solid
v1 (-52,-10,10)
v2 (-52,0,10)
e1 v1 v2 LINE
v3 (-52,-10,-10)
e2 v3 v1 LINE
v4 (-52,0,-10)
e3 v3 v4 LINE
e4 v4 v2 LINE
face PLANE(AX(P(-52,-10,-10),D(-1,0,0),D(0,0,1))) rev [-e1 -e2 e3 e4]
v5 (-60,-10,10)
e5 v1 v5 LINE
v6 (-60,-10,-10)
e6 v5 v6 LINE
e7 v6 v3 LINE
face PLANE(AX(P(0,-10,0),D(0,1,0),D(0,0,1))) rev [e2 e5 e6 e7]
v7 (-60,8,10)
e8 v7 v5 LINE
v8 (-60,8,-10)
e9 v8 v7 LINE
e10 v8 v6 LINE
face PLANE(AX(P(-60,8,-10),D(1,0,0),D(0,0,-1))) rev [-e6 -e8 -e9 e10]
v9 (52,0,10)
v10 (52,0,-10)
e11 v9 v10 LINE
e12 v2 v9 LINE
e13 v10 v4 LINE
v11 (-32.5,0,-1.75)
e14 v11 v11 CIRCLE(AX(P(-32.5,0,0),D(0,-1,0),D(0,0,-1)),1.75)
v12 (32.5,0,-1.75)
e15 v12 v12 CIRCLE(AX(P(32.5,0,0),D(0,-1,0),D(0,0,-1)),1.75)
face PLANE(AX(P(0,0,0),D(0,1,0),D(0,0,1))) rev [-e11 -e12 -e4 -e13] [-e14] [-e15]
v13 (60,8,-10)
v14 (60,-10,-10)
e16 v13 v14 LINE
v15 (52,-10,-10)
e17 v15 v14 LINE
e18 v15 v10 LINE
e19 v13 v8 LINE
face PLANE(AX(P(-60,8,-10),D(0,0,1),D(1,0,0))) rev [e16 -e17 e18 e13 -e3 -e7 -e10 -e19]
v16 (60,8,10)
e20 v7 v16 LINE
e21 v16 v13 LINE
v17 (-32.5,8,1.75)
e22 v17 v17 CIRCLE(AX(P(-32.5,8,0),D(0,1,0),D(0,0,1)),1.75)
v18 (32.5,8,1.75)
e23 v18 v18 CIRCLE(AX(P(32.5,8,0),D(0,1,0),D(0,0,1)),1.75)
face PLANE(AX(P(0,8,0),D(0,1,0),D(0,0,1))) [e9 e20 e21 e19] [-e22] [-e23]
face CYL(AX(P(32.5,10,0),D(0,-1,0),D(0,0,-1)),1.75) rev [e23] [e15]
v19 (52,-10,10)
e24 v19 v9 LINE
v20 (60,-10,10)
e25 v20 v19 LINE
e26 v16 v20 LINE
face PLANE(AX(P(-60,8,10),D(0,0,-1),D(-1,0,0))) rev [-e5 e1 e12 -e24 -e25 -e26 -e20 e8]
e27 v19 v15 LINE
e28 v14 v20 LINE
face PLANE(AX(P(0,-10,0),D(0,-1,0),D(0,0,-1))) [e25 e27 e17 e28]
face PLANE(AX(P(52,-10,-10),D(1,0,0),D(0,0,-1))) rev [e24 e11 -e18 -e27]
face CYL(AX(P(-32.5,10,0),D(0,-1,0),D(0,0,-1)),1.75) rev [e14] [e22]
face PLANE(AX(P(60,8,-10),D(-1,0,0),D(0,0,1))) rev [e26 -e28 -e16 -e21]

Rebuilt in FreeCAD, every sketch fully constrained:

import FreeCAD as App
import Part
import Sketcher


def add_polygon(sketch, points):
    """Adds a closed chain of lines whose ends are joined by coincident constraints."""
    first, n = sketch.GeometryCount, len(points)
    for a, b in zip(points, points[1:] + points[:1]):
        sketch.addGeometry(Part.LineSegment(App.Vector(*a, 0), App.Vector(*b, 0)), False)
    for i in range(n):
        sketch.addConstraint(Sketcher.Constraint("Coincident", first + i, 2, first + (i + 1) % n, 1))

doc = App.newDocument("Part")
body = doc.addObject("PartDesign::Body", "Body")

# Sketch on XZ plane
sketch1 = body.newObject("Sketcher::SketchObject", "Sketch")
sketch1.AttachmentSupport = (doc.getObject("XZ_Plane"), [""])
sketch1.MapMode = "FlatFace"
add_polygon(sketch1, [(-60, -10), (-60, 10), (60, 10), (60, -10)])  # lines 0-3
sketch1.addConstraint([
    Sketcher.Constraint("Vertical", 0),
    Sketcher.Constraint("Horizontal", 1),
    Sketcher.Constraint("Vertical", 2),
    Sketcher.Constraint("Horizontal", 3),
    Sketcher.Constraint("Symmetric", 0, 2, 2, 2, -1, 1),
    Sketcher.Constraint("DistanceX", 1, 1, 1, 2, 120.0),
    Sketcher.Constraint("DistanceY", 0, 1, 0, 2, 20.0),
])
pad1 = body.newObject("PartDesign::Pad", "Pad")
pad1.Profile = sketch1
pad1.Length = 8
pad1.Reversed = True

# Sketch on XZ plane
sketch2 = body.newObject("Sketcher::SketchObject", "Sketch001")
sketch2.AttachmentSupport = (doc.getObject("XZ_Plane"), [""])
sketch2.MapMode = "FlatFace"
add_polygon(sketch2, [(52, 10), (52, -10), (60, -10), (60, 10)])  # lines 0-3
add_polygon(sketch2, [(-60, 10), (-60, -10), (-52, -10), (-52, 10)])  # lines 4-7
sketch2.addConstraint([
    Sketcher.Constraint("Vertical", 0),
    Sketcher.Constraint("Horizontal", 1),
    Sketcher.Constraint("Vertical", 2),
    Sketcher.Constraint("Horizontal", 3),
    Sketcher.Constraint("Vertical", 4),
    Sketcher.Constraint("Horizontal", 5),
    Sketcher.Constraint("Vertical", 6),
    Sketcher.Constraint("Horizontal", 7),
    Sketcher.Constraint("Symmetric", 2, 2, 4, 2, -1, 1),
    Sketcher.Constraint("Symmetric", 0, 2, 6, 2, -1, 1),
    Sketcher.Constraint("Horizontal", 1, 2, 4, 2),
    Sketcher.Constraint("DistanceX", 1, 1, 1, 2, 8.0),
    Sketcher.Constraint("DistanceY", 0, 2, 0, 1, 20.0),
    Sketcher.Constraint("DistanceX", -1, 1, 0, 2, 52.0),
])
pad2 = body.newObject("PartDesign::Pad", "Pad001")
pad2.Profile = sketch2
pad2.Length = 10

# Sketch on XZ plane
sketch3 = body.newObject("Sketcher::SketchObject", "Sketch002")
sketch3.AttachmentSupport = (doc.getObject("XZ_Plane"), [""])
sketch3.MapMode = "FlatFace"
sketch3.addGeometry([
    Part.Circle(App.Vector(32.5, 0, 0), App.Vector(0, 0, 1), 1.8),
    Part.Circle(App.Vector(-32.5, 0, 0), App.Vector(0, 0, 1), 1.8),
], False)
sketch3.addConstraint([
    Sketcher.Constraint("Equal", 0, 1),
    Sketcher.Constraint("Symmetric", 0, 3, 1, 3, -1, 1),
    Sketcher.Constraint("PointOnObject", 0, 3, -1),
    Sketcher.Constraint("Diameter", 0, 3.5),
    Sketcher.Constraint("DistanceX", 1, 3, 0, 3, 65.0),
])
pocket1 = body.newObject("PartDesign::Pocket", "Pocket")
pocket1.Profile = sketch3
pocket1.Length = 10

doc.recompute()
